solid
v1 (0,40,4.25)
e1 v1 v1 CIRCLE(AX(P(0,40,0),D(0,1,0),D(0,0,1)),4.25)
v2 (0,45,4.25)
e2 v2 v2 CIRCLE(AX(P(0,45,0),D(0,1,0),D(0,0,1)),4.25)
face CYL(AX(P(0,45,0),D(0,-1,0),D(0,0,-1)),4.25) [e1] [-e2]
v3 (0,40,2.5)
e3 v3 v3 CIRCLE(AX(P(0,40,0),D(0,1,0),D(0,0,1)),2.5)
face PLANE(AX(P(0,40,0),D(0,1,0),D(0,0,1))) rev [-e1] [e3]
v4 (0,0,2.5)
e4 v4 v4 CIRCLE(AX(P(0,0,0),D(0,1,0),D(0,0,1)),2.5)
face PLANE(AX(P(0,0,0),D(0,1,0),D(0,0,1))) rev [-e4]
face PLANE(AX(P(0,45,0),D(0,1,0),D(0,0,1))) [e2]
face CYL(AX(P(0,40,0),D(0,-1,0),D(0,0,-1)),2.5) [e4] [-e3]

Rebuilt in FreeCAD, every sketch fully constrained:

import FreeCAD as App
import Part
import Sketcher
Q = App.Units.Quantity

doc = App.newDocument("Part")
params = doc.addObject("Spreadsheet::Sheet", "Params")
for row, (alias, value) in enumerate([
    ("sketch1_diameter", "5 mm"),
    ("pad1_length", "40 mm"),
    ("sketch2_diameter", "8.5 mm"),
    ("pad2_length", "5 mm"),
], start=1):
    params.set(f"A{row}", alias)
    params.set(f"B{row}", "=" + value)
    params.setAlias(f"B{row}", alias)

body = doc.addObject("PartDesign::Body", "Body")

# Sketch on XZ plane
sketch1 = body.newObject("Sketcher::SketchObject", "Sketch")
sketch1.AttachmentSupport = (doc.getObject("XZ_Plane"), [""])
sketch1.MapMode = "FlatFace"
sketch1.addGeometry(Part.Circle(App.Vector(0, 0, 0), App.Vector(0, 0, 1), 2.5), False)
sketch1.addConstraint([
    Sketcher.Constraint("Coincident", 0, 3, -1, 1),
    Sketcher.Constraint("Diameter", 0, Q("5 mm")),
])
sketch1.setExpression("Constraints[1]", "Params.sketch1_diameter")
pad1 = body.newObject("PartDesign::Pad", "Pad")
pad1.Profile = sketch1
pad1.setExpression("Length", "Params.pad1_length")
pad1.Reversed = True

# Sketch on XZ plane
sketch2 = body.newObject("Sketcher::SketchObject", "Sketch001")
sketch2.AttachmentSupport = (doc.getObject("XZ_Plane"), [""])
sketch2.MapMode = "FlatFace"
sketch2.AttachmentOffset = App.Placement(App.Vector(0, 0, -40), App.Rotation())
sketch2.addGeometry(Part.Circle(App.Vector(0, 0, 0), App.Vector(0, 0, 1), 4.2), False)
sketch2.addConstraint([
    Sketcher.Constraint("Coincident", 0, 3, -1, 1),
    Sketcher.Constraint("Diameter", 0, Q("8.5 mm")),
])
sketch2.setExpression("Constraints[1]", "Params.sketch2_diameter")
pad2 = body.newObject("PartDesign::Pad", "Pad001")
pad2.Profile = sketch2
pad2.setExpression("Length", "Params.pad2_length")
pad2.Reversed = True

doc.recompute()
